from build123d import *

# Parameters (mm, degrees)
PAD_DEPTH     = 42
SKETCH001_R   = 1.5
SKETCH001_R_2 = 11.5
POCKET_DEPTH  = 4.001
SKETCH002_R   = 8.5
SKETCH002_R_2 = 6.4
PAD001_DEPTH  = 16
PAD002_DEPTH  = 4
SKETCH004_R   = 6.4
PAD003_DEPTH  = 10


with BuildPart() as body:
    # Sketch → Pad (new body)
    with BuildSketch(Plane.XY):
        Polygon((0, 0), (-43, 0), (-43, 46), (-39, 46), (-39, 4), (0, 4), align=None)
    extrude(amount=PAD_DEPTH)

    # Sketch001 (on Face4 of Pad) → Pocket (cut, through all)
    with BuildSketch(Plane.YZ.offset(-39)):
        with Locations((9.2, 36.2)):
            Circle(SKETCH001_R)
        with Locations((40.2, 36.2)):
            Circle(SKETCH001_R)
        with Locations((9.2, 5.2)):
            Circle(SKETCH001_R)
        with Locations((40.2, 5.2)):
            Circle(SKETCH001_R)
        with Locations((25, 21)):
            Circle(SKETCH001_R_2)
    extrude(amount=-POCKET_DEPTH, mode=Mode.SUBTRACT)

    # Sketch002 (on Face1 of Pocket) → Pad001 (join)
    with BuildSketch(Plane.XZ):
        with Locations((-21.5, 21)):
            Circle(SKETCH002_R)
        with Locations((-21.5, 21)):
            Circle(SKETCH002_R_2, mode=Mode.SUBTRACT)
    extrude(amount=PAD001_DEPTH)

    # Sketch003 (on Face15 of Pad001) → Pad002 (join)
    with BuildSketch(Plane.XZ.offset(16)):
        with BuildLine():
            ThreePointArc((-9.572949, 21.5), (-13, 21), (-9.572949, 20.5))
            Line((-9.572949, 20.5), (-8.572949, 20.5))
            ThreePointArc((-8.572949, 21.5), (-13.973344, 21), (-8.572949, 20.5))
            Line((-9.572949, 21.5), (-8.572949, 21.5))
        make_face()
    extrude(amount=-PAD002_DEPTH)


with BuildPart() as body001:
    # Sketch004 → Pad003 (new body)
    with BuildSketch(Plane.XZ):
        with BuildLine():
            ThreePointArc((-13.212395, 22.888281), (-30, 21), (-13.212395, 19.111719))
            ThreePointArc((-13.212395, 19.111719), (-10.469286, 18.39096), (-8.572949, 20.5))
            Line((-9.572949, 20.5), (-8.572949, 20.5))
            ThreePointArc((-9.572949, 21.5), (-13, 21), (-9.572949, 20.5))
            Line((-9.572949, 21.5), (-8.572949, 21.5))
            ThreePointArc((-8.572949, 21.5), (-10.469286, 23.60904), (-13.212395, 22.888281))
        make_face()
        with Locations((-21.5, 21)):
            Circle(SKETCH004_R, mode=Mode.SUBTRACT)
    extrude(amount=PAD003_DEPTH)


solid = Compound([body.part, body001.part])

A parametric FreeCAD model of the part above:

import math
import FreeCAD as App
import Part
import Sketcher

V = App.Vector


def add_polygon(sketch, points):
    """Adds a closed chain of lines whose ends are joined by coincident constraints."""
    first, n = sketch.GeometryCount, len(points)
    for a, b in zip(points, points[1:] + points[:1]):
        sketch.addGeometry(Part.LineSegment(App.Vector(*a, 0), App.Vector(*b, 0)), False)
    for i in range(n):
        sketch.addConstraint(Sketcher.Constraint("Coincident", first + i, 2, first + (i + 1) % n, 1))

doc = App.newDocument("Part")
params = doc.addObject("Spreadsheet::Sheet", "Params")
for row, (alias, value) in enumerate([
    ("sketch1_width", "43 mm"),
    ("sketch1_width2", "39 mm"),
    ("sketch1_height", "42 mm"),
    ("pad1_length", "42 mm"),
    ("sketch2_diameter", "3 mm"),
    ("sketch2_diameter2", "23 mm"),
    ("sketch3_diameter", "17 mm"),
    ("sketch3_diameter2", "12.8 mm"),
    ("pad2_length", "16 mm"),
    ("sketch4_width", "1 mm"),
    ("sketch4_radius", "1.75 mm"),
    ("pad3_length", "4 mm"),
    ("sketch5_diameter", "12.8 mm"),
    ("sketch5_radius", "8.5 mm"),
    ("sketch5_width", "1 mm"),
    ("sketch5_radius2", "1.75 mm"),
    ("pad4_length", "10 mm"),
], start=1):
    params.set(f"A{row}", alias)
    params.set(f"B{row}", "=" + value)
    params.setAlias(f"B{row}", alias)

body = doc.addObject("PartDesign::Body", "Body")

sketch1 = body.newObject("Sketcher::SketchObject", "Sketch")
sketch1.AttachmentSupport = (doc.getObject("XY_Plane"), [""])
sketch1.MapMode = "FlatFace"
add_polygon(sketch1, [(-43, 0), (0, 0), (0, 4), (-39, 4), (-39, 46), (-43, 46)])
sketch1.addConstraint([
    Sketcher.Constraint("Horizontal", 0),
    Sketcher.Constraint("Vertical", 1),
    Sketcher.Constraint("Horizontal", 2),
    Sketcher.Constraint("Vertical", 3),
    Sketcher.Constraint("Horizontal", 4),
    Sketcher.Constraint("Vertical", 5),
    Sketcher.Constraint("Coincident", 0, 2, -1, 1),
    Sketcher.Constraint("Equal", 4, 1),
    Sketcher.Constraint("DistanceX", 0, 1, 0, 2, 43.0),
    Sketcher.Constraint("DistanceX", 2, 2, 2, 1, 39.0),
    Sketcher.Constraint("DistanceY", 3, 1, 3, 2, 42.0),
])
sketch1.setExpression("Constraints[14]", "Params.sketch1_width")
sketch1.setExpression("Constraints[15]", "Params.sketch1_width2")
sketch1.setExpression("Constraints[16]", "Params.sketch1_height")
pad1 = body.newObject("PartDesign::Pad", "Pad")
pad1.Profile = sketch1
pad1.setExpression("Length", "Params.pad1_length")

sketch2 = body.newObject("Sketcher::SketchObject", "Sketch001")
sketch2.AttachmentSupport = (doc.getObject("YZ_Plane"), [""])
sketch2.MapMode = "FlatFace"
sketch2.AttachmentOffset = App.Placement(V(0, 0, -39), App.Rotation())
sketch2.addGeometry([
    Part.Circle(V(9.2, 36.2, 0), V(0, 0, 1), 1.5),
    Part.Circle(V(40.2, 36.2, 0), V(0, 0, 1), 1.5),
    Part.Circle(V(9.2, 5.2, 0), V(0, 0, 1), 1.5),
    Part.Circle(V(40.2, 5.2, 0), V(0, 0, 1), 1.5),
    Part.Circle(V(25, 21, 0), V(0, 0, 1), 11.5),
], False)
sketch2.addConstraint([
    Sketcher.Constraint("Equal", 0, 1),
    Sketcher.Constraint("Equal", 1, 2),
    Sketcher.Constraint("Equal", 2, 3),
    Sketcher.Constraint("Horizontal", 0, 3, 1, 3),
    Sketcher.Constraint("Horizontal", 2, 3, 3, 3),
    Sketcher.Constraint("Vertical", 0, 3, 2, 3),
    Sketcher.Constraint("Vertical", 1, 3, 3, 3),
    Sketcher.Constraint("Diameter", 0, 3.0),
    Sketcher.Constraint("Diameter", 4, 23.0),
    Sketcher.Constraint("DistanceX", -1, 1, 4, 3, 25.0),
    Sketcher.Constraint("DistanceY", -1, 1, 4, 3, 21.0),
    Sketcher.Constraint("DistanceX", 0, 3, 1, 3, 31.0),
    Sketcher.Constraint("DistanceY", 2, 3, 0, 3, 31.0),
    Sketcher.Constraint("DistanceX", -1, 1, 0, 3, 9.2),
    Sketcher.Constraint("DistanceY", -1, 1, 0, 3, 36.2),
])
sketch2.setExpression("Constraints[7]", "Params.sketch2_diameter")
sketch2.setExpression("Constraints[8]", "Params.sketch2_diameter2")
pocket1 = body.newObject("PartDesign::Pocket", "Pocket")
pocket1.Profile = sketch2
pocket1.Type = "ThroughAll"

sketch3 = body.newObject("Sketcher::SketchObject", "Sketch002")
sketch3.AttachmentSupport = (doc.getObject("XZ_Plane"), [""])
sketch3.MapMode = "FlatFace"
sketch3.addGeometry([
    Part.Circle(V(-22, 21, 0), V(0, 0, 1), 8),
    Part.Circle(V(-22, 21, 0), V(0, 0, 1), 6),
], False)
sketch3.addConstraint([
    Sketcher.Constraint("Coincident", 1, 3, 0, 3),
    Sketcher.Constraint("Diameter", 0, 17.0),
    Sketcher.Constraint("Diameter", 1, 12.8),
    Sketcher.Constraint("DistanceY", -1, 1, 0, 3, 21.0),
    Sketcher.Constraint("DistanceX", 0, 3, -1, 1, 21.5),
])
sketch3.setExpression("Constraints[1]", "Params.sketch3_diameter")
sketch3.setExpression("Constraints[2]", "Params.sketch3_diameter2")
pad2 = body.newObject("PartDesign::Pad", "Pad001")
pad2.Profile = sketch3
pad2.setExpression("Length", "Params.pad2_length")

sketch4 = body.newObject("Sketcher::SketchObject", "Sketch003")
sketch4.AttachmentSupport = (doc.getObject("XZ_Plane"), [""])
sketch4.MapMode = "FlatFace"
sketch4.AttachmentOffset = App.Placement(V(0, 0, 16), App.Rotation())
sketch4.addGeometry([
    Part.ArcOfCircle(Part.Circle(V(-11.2, 21, 0), V(0, 0, 1), 1.8), math.radians(17), math.radians(343)),
    Part.LineSegment(V(-9.6, 21.5, 0), V(-8.6, 21.5, 0)),
    Part.ArcOfCircle(Part.Circle(V(-11.3, 21, 0), V(0, 0, 1), 2.7), math.radians(11), math.radians(349)),
    Part.LineSegment(V(-8.6, 20.5, 0), V(-9.6, 20.5, 0)),
], False)
sketch4.addConstraint([
    Sketcher.Constraint("Coincident", 0, 1, 1, 1),
    Sketcher.Constraint("Coincident", 1, 2, 2, 1),
    Sketcher.Constraint("Coincident", 2, 2, 3, 1),
    Sketcher.Constraint("Coincident", 3, 2, 0, 2),
    Sketcher.Constraint("Horizontal", 1),
    Sketcher.Constraint("Horizontal", 3),
    Sketcher.Constraint("Coincident", 2, 3, 0, 3),
    Sketcher.Constraint("Vertical", 1, 2, 2, 2),
    Sketcher.Constraint("DistanceX", 1, 1, 1, 2, 1.0),
    Sketcher.Constraint("Radius", 0, 1.75),
    Sketcher.Constraint("DistanceY", -1, 1, 0, 3, 21.0),
    Sketcher.Constraint("DistanceY", 2, 2, 1, 2, 1.0),
    Sketcher.Constraint("DistanceX", 0, 3, -1, 1, 11.25),
])
sketch4.setExpression("Constraints[8]", "Params.sketch4_width")
sketch4.setExpression("Constraints[9]", "Params.sketch4_radius")
pad3 = body.newObject("PartDesign::Pad", "Pad002")
pad3.Profile = sketch4
pad3.setExpression("Length", "Params.pad3_length")
pad3.Reversed = True
body2 = doc.addObject("PartDesign::Body", "Body001")

sketch5 = body2.newObject("Sketcher::SketchObject", "Sketch004")
sketch5.AttachmentSupport = (doc.getObject("XZ_Plane001"), [""])
sketch5.MapMode = "FlatFace"
sketch5.addGeometry([
    Part.ArcOfCircle(Part.Circle(V(-21.5, 21, 0), V(0, 0, 1), 8.5), math.radians(13), math.radians(347)),
    Part.ArcOfCircle(Part.Circle(V(-11.2, 21, 0), V(0, 0, 1), 2.7), math.radians(-136), math.radians(-11)),
    Part.LineSegment(V(-8.6, 20.5, 0), V(-9.6, 20.5, 0)),
    Part.ArcOfCircle(Part.Circle(V(-11.2, 21, 0), V(0, 0, 1), 1.8), math.radians(17), math.radians(343)),
    Part.LineSegment(V(-9.6, 21.5, 0), V(-8.6, 21.5, 0)),
    Part.ArcOfCircle(Part.Circle(V(-11.2, 21, 0), V(0, 0, 1), 2.7), math.radians(11), math.radians(136)),
    Part.Circle(V(-21.5, 21, 0), V(0, 0, 1), 6.4),
], False)
sketch5.addConstraint([
    Sketcher.Constraint("Coincident", 0, 2, 1, 1),
    Sketcher.Constraint("Coincident", 1, 2, 2, 1),
    Sketcher.Constraint("Coincident", 2, 2, 3, 2),
    Sketcher.Constraint("Coincident", 3, 1, 4, 1),
    Sketcher.Constraint("Coincident", 4, 2, 5, 1),
    Sketcher.Constraint("Coincident", 5, 2, 0, 1),
    Sketcher.Constraint("Horizontal", 2),
    Sketcher.Constraint("Horizontal", 4),
    Sketcher.Constraint("Coincident", 3, 3, 1, 3),
    Sketcher.Constraint("Coincident", 5, 3, 1, 3),
    Sketcher.Constraint("Coincident", 6, 3, 0, 3),
    Sketcher.Constraint("Equal", 1, 5),
    Sketcher.Constraint("Horizontal", 0, 3, 1, 3),
    Sketcher.Constraint("Vertical", 2, 2, 3, 1),
    Sketcher.Constraint("Diameter", 6, 12.8),
    Sketcher.Constraint("Radius", 0, 8.5),
    Sketcher.Constraint("DistanceX", 2, 2, 2, 1, 1.0),
    Sketcher.Constraint("Radius", 3, 1.75),
    Sketcher.Constraint("DistanceY", -1, 1, 0, 3, 21.0),
    Sketcher.Constraint("DistanceY", 2, 2, 3, 1, 1.0),
    Sketcher.Constraint("DistanceX", 0, 3, -1, 1, 21.5),
    Sketcher.Constraint("DistanceX", 1, 3, -1, 1, 11.249999),
])
sketch5.setExpression("Constraints[14]", "Params.sketch5_diameter")
sketch5.setExpression("Constraints[15]", "Params.sketch5_radius")
sketch5.setExpression("Constraints[16]", "Params.sketch5_width")
sketch5.setExpression("Constraints[17]", "Params.sketch5_radius2")
pad4 = body2.newObject("PartDesign::Pad", "Pad003")
pad4.Profile = sketch5
pad4.setExpression("Length", "Params.pad4_length")

doc.recompute()
